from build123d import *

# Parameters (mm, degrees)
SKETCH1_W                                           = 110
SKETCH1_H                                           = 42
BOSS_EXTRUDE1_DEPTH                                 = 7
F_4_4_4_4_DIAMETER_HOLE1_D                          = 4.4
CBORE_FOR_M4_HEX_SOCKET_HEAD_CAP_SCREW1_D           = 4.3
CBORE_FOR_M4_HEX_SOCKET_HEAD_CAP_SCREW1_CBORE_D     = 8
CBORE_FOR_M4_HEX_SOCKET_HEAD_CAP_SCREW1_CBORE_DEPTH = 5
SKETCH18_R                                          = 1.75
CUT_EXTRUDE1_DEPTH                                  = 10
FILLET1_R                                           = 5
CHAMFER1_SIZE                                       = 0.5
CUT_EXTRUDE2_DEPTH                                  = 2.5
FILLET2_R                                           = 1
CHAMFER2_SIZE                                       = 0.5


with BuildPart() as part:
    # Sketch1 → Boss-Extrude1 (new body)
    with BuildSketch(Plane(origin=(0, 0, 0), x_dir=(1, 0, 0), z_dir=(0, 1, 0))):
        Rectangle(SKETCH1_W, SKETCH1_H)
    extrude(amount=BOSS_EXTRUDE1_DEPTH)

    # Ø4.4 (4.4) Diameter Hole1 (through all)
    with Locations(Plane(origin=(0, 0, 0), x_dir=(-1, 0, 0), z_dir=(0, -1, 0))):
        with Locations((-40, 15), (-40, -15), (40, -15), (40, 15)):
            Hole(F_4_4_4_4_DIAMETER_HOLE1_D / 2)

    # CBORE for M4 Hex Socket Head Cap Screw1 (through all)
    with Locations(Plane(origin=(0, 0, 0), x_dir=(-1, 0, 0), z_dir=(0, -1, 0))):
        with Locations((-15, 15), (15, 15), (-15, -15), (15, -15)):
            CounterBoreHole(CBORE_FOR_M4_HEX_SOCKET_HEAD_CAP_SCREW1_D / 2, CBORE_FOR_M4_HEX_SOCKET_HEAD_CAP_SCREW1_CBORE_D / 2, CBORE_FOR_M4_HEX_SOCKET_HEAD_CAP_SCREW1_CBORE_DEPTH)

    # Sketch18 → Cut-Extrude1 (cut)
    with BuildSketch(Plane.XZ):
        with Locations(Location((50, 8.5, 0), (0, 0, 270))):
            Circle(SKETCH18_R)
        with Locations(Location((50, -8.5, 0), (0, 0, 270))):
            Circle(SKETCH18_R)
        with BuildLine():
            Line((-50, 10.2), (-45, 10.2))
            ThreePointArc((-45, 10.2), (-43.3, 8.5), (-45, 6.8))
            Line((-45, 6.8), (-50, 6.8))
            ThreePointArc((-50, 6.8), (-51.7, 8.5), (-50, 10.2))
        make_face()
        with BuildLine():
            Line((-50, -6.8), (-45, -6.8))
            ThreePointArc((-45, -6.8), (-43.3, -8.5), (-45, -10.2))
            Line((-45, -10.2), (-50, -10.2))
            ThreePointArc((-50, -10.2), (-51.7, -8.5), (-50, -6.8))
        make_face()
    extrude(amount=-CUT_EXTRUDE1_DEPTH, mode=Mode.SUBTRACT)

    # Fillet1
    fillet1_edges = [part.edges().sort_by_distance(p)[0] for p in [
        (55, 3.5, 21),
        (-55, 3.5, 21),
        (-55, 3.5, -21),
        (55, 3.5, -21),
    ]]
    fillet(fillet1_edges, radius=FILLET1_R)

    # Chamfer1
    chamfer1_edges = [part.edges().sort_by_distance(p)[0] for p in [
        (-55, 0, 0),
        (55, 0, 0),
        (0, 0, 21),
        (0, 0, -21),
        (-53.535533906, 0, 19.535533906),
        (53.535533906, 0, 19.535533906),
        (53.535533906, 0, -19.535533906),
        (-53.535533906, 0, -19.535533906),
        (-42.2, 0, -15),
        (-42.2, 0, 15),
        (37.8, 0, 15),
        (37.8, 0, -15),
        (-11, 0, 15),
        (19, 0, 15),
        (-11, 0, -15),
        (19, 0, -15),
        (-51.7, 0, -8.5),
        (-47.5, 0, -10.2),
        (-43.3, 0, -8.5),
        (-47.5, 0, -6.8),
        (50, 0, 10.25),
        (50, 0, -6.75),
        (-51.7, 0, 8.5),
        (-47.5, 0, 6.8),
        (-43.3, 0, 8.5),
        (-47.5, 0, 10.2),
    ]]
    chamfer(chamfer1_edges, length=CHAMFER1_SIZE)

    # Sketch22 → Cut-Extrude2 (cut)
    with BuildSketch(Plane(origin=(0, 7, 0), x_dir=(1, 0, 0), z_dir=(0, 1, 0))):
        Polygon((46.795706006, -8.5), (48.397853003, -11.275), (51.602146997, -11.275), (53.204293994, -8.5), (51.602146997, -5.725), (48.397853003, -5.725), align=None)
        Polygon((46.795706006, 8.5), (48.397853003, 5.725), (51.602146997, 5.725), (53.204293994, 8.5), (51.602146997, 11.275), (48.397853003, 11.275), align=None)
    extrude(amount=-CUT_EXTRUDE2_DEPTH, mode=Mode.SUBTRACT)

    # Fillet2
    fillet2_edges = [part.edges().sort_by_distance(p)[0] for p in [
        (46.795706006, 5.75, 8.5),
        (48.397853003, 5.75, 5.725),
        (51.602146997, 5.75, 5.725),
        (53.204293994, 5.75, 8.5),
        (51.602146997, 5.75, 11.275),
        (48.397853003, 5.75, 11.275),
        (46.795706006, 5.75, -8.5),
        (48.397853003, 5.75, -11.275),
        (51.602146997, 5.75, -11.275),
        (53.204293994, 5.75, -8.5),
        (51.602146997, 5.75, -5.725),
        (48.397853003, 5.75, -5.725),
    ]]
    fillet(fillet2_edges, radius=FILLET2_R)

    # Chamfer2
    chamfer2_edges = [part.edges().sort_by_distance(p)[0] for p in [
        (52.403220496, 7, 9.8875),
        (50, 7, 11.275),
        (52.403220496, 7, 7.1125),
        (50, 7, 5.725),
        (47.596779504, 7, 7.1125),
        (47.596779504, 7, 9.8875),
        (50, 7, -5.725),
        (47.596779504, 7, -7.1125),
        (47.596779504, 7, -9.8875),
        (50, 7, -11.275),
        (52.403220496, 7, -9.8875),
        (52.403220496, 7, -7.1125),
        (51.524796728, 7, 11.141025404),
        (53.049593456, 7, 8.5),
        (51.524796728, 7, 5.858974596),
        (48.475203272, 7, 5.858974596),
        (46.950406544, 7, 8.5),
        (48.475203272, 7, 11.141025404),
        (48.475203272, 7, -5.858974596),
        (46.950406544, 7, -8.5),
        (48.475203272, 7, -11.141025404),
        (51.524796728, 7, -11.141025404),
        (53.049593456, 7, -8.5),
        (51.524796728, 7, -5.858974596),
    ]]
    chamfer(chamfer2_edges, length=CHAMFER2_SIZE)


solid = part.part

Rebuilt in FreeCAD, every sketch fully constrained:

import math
import FreeCAD as App
import Part
import Sketcher
Q = App.Units.Quantity


def edges_at(feature, points):
    """Names of the edges that pass closest to the given points."""
    edges = feature.Shape.Edges
    near = lambda p: min(range(len(edges)), key=lambda i: edges[i].distToShape(Part.Vertex(*p))[0])
    return sorted({f"Edge{near(p) + 1}" for p in points})


def add_polygon(sketch, points):
    """Adds a closed chain of lines whose ends are joined by coincident constraints."""
    first, n = sketch.GeometryCount, len(points)
    for a, b in zip(points, points[1:] + points[:1]):
        sketch.addGeometry(Part.LineSegment(App.Vector(*a, 0), App.Vector(*b, 0)), False)
    for i in range(n):
        sketch.addConstraint(Sketcher.Constraint("Coincident", first + i, 2, first + (i + 1) % n, 1))

doc = App.newDocument("Part")
body = doc.addObject("PartDesign::Body", "Body")

# Sketch on XZ plane
sketch1 = doc.addObject("Sketcher::SketchObject", "Sketch")
body.addObject(sketch1)
sketch1.AttachmentSupport = (doc.XZ_Plane, [""])
sketch1.MapMode = "FlatFace"
add_polygon(sketch1, [(-55, -21), (-55, 21), (55, 21), (55, -21)])  # lines 0-3
sketch1.addConstraint([
    Sketcher.Constraint("Vertical", 0),
    Sketcher.Constraint("Horizontal", 1),
    Sketcher.Constraint("Vertical", 2),
    Sketcher.Constraint("Horizontal", 3),
    Sketcher.Constraint("Symmetric", 0, 2, 2, 2, -1, 1),
    Sketcher.Constraint("DistanceX", 1, 1, 1, 2, Q("110 mm")),
    Sketcher.Constraint("DistanceY", 0, 1, 0, 2, Q("42 mm")),
])
pad1 = doc.addObject("PartDesign::Pad", "Pad")
body.addObject(pad1)
pad1.Profile = sketch1
pad1.Length = 7
pad1.Reversed = True

# Sketch on XZ plane
sketch2 = doc.addObject("Sketcher::SketchObject", "Sketch001")
body.addObject(sketch2)
sketch2.AttachmentSupport = (doc.XZ_Plane, [""])
sketch2.MapMode = "FlatFace"
sketch2.addGeometry([
    Part.Circle(App.Vector(40, -15, 0), App.Vector(0, 0, 1), 2.2),
    Part.Circle(App.Vector(40, 15, 0), App.Vector(0, 0, 1), 2.2),
    Part.Circle(App.Vector(-40, 15, 0), App.Vector(0, 0, 1), 2.2),
    Part.Circle(App.Vector(-40, -15, 0), App.Vector(0, 0, 1), 2.2),
], False)
sketch2.addConstraint([
    Sketcher.Constraint("Equal", 0, 1),
    Sketcher.Constraint("Equal", 1, 2),
    Sketcher.Constraint("Equal", 2, 3),
    Sketcher.Constraint("Symmetric", 0, 3, 2, 3, -1, 1),
    Sketcher.Constraint("Symmetric", 1, 3, 3, 3, -1, 1),
    Sketcher.Constraint("Symmetric", 1, 3, 2, 3, -2),
    Sketcher.Constraint("Diameter", 0, Q("4.4 mm")),
    Sketcher.Constraint("DistanceX", -1, 1, 0, 3, Q("40 mm")),
    Sketcher.Constraint("DistanceY", 0, 3, -1, 1, Q("15 mm")),
])
doc.recompute()
hole = doc.addObject("PartDesign::Hole", "Hole")
body.addObject(hole)
hole.Profile = sketch2
hole.ThreadType = "None"
hole.Diameter = 4.4
hole.DepthType = "ThroughAll"

# Sketch on XZ plane
sketch3 = doc.addObject("Sketcher::SketchObject", "Sketch002")
body.addObject(sketch3)
sketch3.AttachmentSupport = (doc.XZ_Plane, [""])
sketch3.MapMode = "FlatFace"
sketch3.addGeometry([
    Part.Circle(App.Vector(15, -15, 0), App.Vector(0, 0, 1), 2.15),
    Part.Circle(App.Vector(-15, -15, 0), App.Vector(0, 0, 1), 2.15),
    Part.Circle(App.Vector(15, 15, 0), App.Vector(0, 0, 1), 2.15),
    Part.Circle(App.Vector(-15, 15, 0), App.Vector(0, 0, 1), 2.15),
], False)
sketch3.addConstraint([
    Sketcher.Constraint("Equal", 0, 1),
    Sketcher.Constraint("Equal", 1, 2),
    Sketcher.Constraint("Equal", 2, 3),
    Sketcher.Constraint("Symmetric", 1, 3, 2, 3, -1, 1),
    Sketcher.Constraint("Symmetric", 0, 3, 3, 3, -1, 1),
    Sketcher.Constraint("Symmetric", 0, 3, 1, 3, -2),
    Sketcher.Constraint("Diameter", 0, Q("4.3 mm")),
    Sketcher.Constraint("DistanceX", -1, 1, 0, 3, Q("15 mm")),
    Sketcher.Constraint("DistanceY", 0, 3, -1, 1, Q("15 mm")),
])
doc.recompute()
hole2 = doc.addObject("PartDesign::Hole", "Hole001")
body.addObject(hole2)
hole2.Profile = sketch3
hole2.ThreadType = "None"
hole2.Diameter = 4.3
hole2.DepthType = "ThroughAll"
hole2.HoleCutType = "Counterbore"
hole2.HoleCutDiameter = 8
hole2.HoleCutDepth = 5

# Sketch on XZ plane
sketch4 = doc.addObject("Sketcher::SketchObject", "Sketch003")
body.addObject(sketch4)
sketch4.AttachmentSupport = (doc.XZ_Plane, [""])
sketch4.MapMode = "FlatFace"
sketch4.addGeometry([
    Part.Circle(App.Vector(50, 8.5, 0), App.Vector(0, 0, 1), 1.75),  # 0
    Part.Circle(App.Vector(50, -8.5, 0), App.Vector(0, 0, 1), 1.75),  # 1
    Part.LineSegment(App.Vector(-45, 10.2, 0), App.Vector(-50, 10.2, 0)),  # 2
    Part.ArcOfCircle(Part.Circle(App.Vector(-50, 8.5, 0), App.Vector(0, 0, 1), 1.7), math.radians(90), math.radians(270)),  # 3
    Part.LineSegment(App.Vector(-50, 6.8, 0), App.Vector(-45, 6.8, 0)),  # 4
    Part.ArcOfCircle(Part.Circle(App.Vector(-45, 8.5, 0), App.Vector(0, 0, 1), 1.7), math.radians(-90), math.radians(90)),  # 5
    Part.LineSegment(App.Vector(-45, -6.8, 0), App.Vector(-50, -6.8, 0)),  # 6
    Part.ArcOfCircle(Part.Circle(App.Vector(-50, -8.5, 0), App.Vector(0, 0, 1), 1.7), math.radians(90), math.radians(270)),  # 7
    Part.LineSegment(App.Vector(-50, -10.2, 0), App.Vector(-45, -10.2, 0)),  # 8
    Part.ArcOfCircle(Part.Circle(App.Vector(-45, -8.5, 0), App.Vector(0, 0, 1), 1.7), math.radians(-90), math.radians(90)),  # 9
], False)
sketch4.addConstraint([
    Sketcher.Constraint("Tangent", 2, 2, 3, 1),
    Sketcher.Constraint("Tangent", 3, 2, 4, 1),
    Sketcher.Constraint("Tangent", 4, 2, 5, 1),
    Sketcher.Constraint("Tangent", 5, 2, 2, 1),
    Sketcher.Constraint("Tangent", 6, 2, 7, 1),
    Sketcher.Constraint("Tangent", 7, 2, 8, 1),
    Sketcher.Constraint("Tangent", 8, 2, 9, 1),
    Sketcher.Constraint("Tangent", 9, 2, 6, 1),
    Sketcher.Constraint("Horizontal", 2),
    Sketcher.Constraint("Horizontal", 4),
    Sketcher.Constraint("Horizontal", 6),
    Sketcher.Constraint("Horizontal", 8),
    Sketcher.Constraint("Equal", 0, 1),
    Sketcher.Constraint("Equal", 5, 7),
    Sketcher.Constraint("Symmetric", 1, 3, 3, 3, -1, 1),
    Sketcher.Constraint("Symmetric", 0, 3, 7, 3, -1, 1),
    Sketcher.Constraint("Symmetric", 0, 3, 3, 3, -2),
    Sketcher.Constraint("Vertical", 5, 3, 9, 3),
    Sketcher.Constraint("Diameter", 0, Q("3.5 mm")),
    Sketcher.Constraint("Radius", 3, Q("1.7 mm")),
    Sketcher.Constraint("DistanceX", 2, 2, 2, 1, Q("5 mm")),
    Sketcher.Constraint("DistanceX", -1, 1, 0, 3, Q("50 mm")),
    Sketcher.Constraint("DistanceY", 1, 3, 0, 3, Q("17 mm")),
])
pocket1 = doc.addObject("PartDesign::Pocket", "Pocket")
body.addObject(pocket1)
pocket1.Profile = sketch4
pocket1.Length = 10
doc.recompute()

fillet = doc.addObject("PartDesign::Fillet", "Fillet")
body.addObject(fillet)
fillet.Base = (pocket1, edges_at(pocket1, [
    (55, 3.5, 21),
    (-55, 3.5, 21),
    (-55, 3.5, -21),
    (55, 3.5, -21),
]))
fillet.Radius = 5
doc.recompute()

chamfer = doc.addObject("PartDesign::Chamfer", "Chamfer")
body.addObject(chamfer)
chamfer.Base = (fillet, edges_at(fillet, [
    (-55, 0, 0),
    (55, 0, 0),
    (0, 0, 21),
    (0, 0, -21),
    (-53.536, 0, 19.536),
    (53.536, 0, 19.536),
    (53.536, 0, -19.536),
    (-53.536, 0, -19.536),
    (-42.2, 0, -15),
    (-42.2, 0, 15),
    (37.8, 0, 15),
    (37.8, 0, -15),
    (-11, 0, 15),
    (19, 0, 15),
    (-11, 0, -15),
    (19, 0, -15),
    (-51.7, 0, -8.5),
    (-47.5, 0, -10.2),
    (-43.3, 0, -8.5),
    (-47.5, 0, -6.8),
    (50, 0, 10.25),
    (50, 0, -6.75),
    (-51.7, 0, 8.5),
    (-47.5, 0, 6.8),
    (-43.3, 0, 8.5),
    (-47.5, 0, 10.2),
]))
chamfer.Size = 0.5

# Sketch on XZ plane
sketch5 = doc.addObject("Sketcher::SketchObject", "Sketch004")
body.addObject(sketch5)
sketch5.AttachmentSupport = (doc.XZ_Plane, [""])
sketch5.MapMode = "FlatFace"
sketch5.AttachmentOffset = App.Placement(App.Vector(0, 0, -7), App.Rotation())
add_polygon(sketch5, [(46.795706, 8.5), (48.397853, 11.275), (51.602147, 11.275), (53.204294, 8.5), (51.602147, 5.725), (48.397853, 5.725)])  # lines 0-5
add_polygon(sketch5, [(46.795706, -8.5), (48.397853, -5.725), (51.602147, -5.725), (53.204294, -8.5), (51.602147, -11.275), (48.397853, -11.275)])  # lines 6-11
sketch5.addConstraint([
    Sketcher.Constraint("Horizontal", 1),
    Sketcher.Constraint("Horizontal", 4),
    Sketcher.Constraint("Horizontal", 7),
    Sketcher.Constraint("Horizontal", 10),
    Sketcher.Constraint("Symmetric", 4, 2, 6, 2, -1),
    Sketcher.Constraint("Symmetric", 2, 2, 8, 2, -1),
    Sketcher.Constraint("Symmetric", 1, 2, 9, 2, -1),
    Sketcher.Constraint("Symmetric", 5, 2, 11, 2, -1),
    Sketcher.Constraint("Parallel", 0, 3),
    Sketcher.Constraint("Parallel", 2, 5),
    Sketcher.Constraint("Parallel", 3, 6),
    Sketcher.Constraint("Parallel", 5, 8),
    Sketcher.Constraint("Parallel", 8, 11),
    Sketcher.Constraint("Horizontal", 2, 2, 5, 2),
    Sketcher.Constraint("Vertical", 1, 2, 3, 2),
    Sketcher.Constraint("Angle", 0, Q("60 deg")),
    Sketcher.Constraint("DistanceY", 6, 2, 0, 2, Q("17 mm")),
    Sketcher.Constraint("DistanceY", 3, 2, 1, 2, Q("5.55 mm")),
    Sketcher.Constraint("DistanceX", 1, 1, 1, 2, Q("3.204294 mm")),
    Sketcher.Constraint("DistanceX", -1, 1, 0, 2, Q("48.397853 mm")),
])
pocket2 = doc.addObject("PartDesign::Pocket", "Pocket001")
body.addObject(pocket2)
pocket2.Profile = sketch5
pocket2.Length = 2.5
pocket2.Reversed = True
doc.recompute()

fillet2 = doc.addObject("PartDesign::Fillet", "Fillet001")
body.addObject(fillet2)
fillet2.Base = (pocket2, edges_at(pocket2, [
    (46.796, 5.75, 8.5),
    (48.398, 5.75, 5.725),
    (51.602, 5.75, 5.725),
    (53.204, 5.75, 8.5),
    (51.602, 5.75, 11.275),
    (48.398, 5.75, 11.275),
    (46.796, 5.75, -8.5),
    (48.398, 5.75, -11.275),
    (51.602, 5.75, -11.275),
    (53.204, 5.75, -8.5),
    (51.602, 5.75, -5.725),
    (48.398, 5.75, -5.725),
]))
fillet2.Radius = 1
doc.recompute()

chamfer2 = doc.addObject("PartDesign::Chamfer", "Chamfer001")
body.addObject(chamfer2)
chamfer2.Base = (fillet2, edges_at(fillet2, [
    (52.403, 7, 9.887),
    (50, 7, 11.275),
    (52.403, 7, 7.112),
    (50, 7, 5.725),
    (47.597, 7, 7.112),
    (47.597, 7, 9.887),
    (50, 7, -5.725),
    (47.597, 7, -7.112),
    (47.597, 7, -9.887),
    (50, 7, -11.275),
    (52.403, 7, -9.887),
    (52.403, 7, -7.112),
    (51.525, 7, 11.141),
    (53.05, 7, 8.5),
    (51.525, 7, 5.859),
    (48.475, 7, 5.859),
    (46.95, 7, 8.5),
    (48.475, 7, 11.141),
    (48.475, 7, -5.859),
    (46.95, 7, -8.5),
    (48.475, 7, -11.141),
    (51.525, 7, -11.141),
    (53.05, 7, -8.5),
    (51.525, 7, -5.859),
]))
chamfer2.Size = 0.5

doc.recompute()
